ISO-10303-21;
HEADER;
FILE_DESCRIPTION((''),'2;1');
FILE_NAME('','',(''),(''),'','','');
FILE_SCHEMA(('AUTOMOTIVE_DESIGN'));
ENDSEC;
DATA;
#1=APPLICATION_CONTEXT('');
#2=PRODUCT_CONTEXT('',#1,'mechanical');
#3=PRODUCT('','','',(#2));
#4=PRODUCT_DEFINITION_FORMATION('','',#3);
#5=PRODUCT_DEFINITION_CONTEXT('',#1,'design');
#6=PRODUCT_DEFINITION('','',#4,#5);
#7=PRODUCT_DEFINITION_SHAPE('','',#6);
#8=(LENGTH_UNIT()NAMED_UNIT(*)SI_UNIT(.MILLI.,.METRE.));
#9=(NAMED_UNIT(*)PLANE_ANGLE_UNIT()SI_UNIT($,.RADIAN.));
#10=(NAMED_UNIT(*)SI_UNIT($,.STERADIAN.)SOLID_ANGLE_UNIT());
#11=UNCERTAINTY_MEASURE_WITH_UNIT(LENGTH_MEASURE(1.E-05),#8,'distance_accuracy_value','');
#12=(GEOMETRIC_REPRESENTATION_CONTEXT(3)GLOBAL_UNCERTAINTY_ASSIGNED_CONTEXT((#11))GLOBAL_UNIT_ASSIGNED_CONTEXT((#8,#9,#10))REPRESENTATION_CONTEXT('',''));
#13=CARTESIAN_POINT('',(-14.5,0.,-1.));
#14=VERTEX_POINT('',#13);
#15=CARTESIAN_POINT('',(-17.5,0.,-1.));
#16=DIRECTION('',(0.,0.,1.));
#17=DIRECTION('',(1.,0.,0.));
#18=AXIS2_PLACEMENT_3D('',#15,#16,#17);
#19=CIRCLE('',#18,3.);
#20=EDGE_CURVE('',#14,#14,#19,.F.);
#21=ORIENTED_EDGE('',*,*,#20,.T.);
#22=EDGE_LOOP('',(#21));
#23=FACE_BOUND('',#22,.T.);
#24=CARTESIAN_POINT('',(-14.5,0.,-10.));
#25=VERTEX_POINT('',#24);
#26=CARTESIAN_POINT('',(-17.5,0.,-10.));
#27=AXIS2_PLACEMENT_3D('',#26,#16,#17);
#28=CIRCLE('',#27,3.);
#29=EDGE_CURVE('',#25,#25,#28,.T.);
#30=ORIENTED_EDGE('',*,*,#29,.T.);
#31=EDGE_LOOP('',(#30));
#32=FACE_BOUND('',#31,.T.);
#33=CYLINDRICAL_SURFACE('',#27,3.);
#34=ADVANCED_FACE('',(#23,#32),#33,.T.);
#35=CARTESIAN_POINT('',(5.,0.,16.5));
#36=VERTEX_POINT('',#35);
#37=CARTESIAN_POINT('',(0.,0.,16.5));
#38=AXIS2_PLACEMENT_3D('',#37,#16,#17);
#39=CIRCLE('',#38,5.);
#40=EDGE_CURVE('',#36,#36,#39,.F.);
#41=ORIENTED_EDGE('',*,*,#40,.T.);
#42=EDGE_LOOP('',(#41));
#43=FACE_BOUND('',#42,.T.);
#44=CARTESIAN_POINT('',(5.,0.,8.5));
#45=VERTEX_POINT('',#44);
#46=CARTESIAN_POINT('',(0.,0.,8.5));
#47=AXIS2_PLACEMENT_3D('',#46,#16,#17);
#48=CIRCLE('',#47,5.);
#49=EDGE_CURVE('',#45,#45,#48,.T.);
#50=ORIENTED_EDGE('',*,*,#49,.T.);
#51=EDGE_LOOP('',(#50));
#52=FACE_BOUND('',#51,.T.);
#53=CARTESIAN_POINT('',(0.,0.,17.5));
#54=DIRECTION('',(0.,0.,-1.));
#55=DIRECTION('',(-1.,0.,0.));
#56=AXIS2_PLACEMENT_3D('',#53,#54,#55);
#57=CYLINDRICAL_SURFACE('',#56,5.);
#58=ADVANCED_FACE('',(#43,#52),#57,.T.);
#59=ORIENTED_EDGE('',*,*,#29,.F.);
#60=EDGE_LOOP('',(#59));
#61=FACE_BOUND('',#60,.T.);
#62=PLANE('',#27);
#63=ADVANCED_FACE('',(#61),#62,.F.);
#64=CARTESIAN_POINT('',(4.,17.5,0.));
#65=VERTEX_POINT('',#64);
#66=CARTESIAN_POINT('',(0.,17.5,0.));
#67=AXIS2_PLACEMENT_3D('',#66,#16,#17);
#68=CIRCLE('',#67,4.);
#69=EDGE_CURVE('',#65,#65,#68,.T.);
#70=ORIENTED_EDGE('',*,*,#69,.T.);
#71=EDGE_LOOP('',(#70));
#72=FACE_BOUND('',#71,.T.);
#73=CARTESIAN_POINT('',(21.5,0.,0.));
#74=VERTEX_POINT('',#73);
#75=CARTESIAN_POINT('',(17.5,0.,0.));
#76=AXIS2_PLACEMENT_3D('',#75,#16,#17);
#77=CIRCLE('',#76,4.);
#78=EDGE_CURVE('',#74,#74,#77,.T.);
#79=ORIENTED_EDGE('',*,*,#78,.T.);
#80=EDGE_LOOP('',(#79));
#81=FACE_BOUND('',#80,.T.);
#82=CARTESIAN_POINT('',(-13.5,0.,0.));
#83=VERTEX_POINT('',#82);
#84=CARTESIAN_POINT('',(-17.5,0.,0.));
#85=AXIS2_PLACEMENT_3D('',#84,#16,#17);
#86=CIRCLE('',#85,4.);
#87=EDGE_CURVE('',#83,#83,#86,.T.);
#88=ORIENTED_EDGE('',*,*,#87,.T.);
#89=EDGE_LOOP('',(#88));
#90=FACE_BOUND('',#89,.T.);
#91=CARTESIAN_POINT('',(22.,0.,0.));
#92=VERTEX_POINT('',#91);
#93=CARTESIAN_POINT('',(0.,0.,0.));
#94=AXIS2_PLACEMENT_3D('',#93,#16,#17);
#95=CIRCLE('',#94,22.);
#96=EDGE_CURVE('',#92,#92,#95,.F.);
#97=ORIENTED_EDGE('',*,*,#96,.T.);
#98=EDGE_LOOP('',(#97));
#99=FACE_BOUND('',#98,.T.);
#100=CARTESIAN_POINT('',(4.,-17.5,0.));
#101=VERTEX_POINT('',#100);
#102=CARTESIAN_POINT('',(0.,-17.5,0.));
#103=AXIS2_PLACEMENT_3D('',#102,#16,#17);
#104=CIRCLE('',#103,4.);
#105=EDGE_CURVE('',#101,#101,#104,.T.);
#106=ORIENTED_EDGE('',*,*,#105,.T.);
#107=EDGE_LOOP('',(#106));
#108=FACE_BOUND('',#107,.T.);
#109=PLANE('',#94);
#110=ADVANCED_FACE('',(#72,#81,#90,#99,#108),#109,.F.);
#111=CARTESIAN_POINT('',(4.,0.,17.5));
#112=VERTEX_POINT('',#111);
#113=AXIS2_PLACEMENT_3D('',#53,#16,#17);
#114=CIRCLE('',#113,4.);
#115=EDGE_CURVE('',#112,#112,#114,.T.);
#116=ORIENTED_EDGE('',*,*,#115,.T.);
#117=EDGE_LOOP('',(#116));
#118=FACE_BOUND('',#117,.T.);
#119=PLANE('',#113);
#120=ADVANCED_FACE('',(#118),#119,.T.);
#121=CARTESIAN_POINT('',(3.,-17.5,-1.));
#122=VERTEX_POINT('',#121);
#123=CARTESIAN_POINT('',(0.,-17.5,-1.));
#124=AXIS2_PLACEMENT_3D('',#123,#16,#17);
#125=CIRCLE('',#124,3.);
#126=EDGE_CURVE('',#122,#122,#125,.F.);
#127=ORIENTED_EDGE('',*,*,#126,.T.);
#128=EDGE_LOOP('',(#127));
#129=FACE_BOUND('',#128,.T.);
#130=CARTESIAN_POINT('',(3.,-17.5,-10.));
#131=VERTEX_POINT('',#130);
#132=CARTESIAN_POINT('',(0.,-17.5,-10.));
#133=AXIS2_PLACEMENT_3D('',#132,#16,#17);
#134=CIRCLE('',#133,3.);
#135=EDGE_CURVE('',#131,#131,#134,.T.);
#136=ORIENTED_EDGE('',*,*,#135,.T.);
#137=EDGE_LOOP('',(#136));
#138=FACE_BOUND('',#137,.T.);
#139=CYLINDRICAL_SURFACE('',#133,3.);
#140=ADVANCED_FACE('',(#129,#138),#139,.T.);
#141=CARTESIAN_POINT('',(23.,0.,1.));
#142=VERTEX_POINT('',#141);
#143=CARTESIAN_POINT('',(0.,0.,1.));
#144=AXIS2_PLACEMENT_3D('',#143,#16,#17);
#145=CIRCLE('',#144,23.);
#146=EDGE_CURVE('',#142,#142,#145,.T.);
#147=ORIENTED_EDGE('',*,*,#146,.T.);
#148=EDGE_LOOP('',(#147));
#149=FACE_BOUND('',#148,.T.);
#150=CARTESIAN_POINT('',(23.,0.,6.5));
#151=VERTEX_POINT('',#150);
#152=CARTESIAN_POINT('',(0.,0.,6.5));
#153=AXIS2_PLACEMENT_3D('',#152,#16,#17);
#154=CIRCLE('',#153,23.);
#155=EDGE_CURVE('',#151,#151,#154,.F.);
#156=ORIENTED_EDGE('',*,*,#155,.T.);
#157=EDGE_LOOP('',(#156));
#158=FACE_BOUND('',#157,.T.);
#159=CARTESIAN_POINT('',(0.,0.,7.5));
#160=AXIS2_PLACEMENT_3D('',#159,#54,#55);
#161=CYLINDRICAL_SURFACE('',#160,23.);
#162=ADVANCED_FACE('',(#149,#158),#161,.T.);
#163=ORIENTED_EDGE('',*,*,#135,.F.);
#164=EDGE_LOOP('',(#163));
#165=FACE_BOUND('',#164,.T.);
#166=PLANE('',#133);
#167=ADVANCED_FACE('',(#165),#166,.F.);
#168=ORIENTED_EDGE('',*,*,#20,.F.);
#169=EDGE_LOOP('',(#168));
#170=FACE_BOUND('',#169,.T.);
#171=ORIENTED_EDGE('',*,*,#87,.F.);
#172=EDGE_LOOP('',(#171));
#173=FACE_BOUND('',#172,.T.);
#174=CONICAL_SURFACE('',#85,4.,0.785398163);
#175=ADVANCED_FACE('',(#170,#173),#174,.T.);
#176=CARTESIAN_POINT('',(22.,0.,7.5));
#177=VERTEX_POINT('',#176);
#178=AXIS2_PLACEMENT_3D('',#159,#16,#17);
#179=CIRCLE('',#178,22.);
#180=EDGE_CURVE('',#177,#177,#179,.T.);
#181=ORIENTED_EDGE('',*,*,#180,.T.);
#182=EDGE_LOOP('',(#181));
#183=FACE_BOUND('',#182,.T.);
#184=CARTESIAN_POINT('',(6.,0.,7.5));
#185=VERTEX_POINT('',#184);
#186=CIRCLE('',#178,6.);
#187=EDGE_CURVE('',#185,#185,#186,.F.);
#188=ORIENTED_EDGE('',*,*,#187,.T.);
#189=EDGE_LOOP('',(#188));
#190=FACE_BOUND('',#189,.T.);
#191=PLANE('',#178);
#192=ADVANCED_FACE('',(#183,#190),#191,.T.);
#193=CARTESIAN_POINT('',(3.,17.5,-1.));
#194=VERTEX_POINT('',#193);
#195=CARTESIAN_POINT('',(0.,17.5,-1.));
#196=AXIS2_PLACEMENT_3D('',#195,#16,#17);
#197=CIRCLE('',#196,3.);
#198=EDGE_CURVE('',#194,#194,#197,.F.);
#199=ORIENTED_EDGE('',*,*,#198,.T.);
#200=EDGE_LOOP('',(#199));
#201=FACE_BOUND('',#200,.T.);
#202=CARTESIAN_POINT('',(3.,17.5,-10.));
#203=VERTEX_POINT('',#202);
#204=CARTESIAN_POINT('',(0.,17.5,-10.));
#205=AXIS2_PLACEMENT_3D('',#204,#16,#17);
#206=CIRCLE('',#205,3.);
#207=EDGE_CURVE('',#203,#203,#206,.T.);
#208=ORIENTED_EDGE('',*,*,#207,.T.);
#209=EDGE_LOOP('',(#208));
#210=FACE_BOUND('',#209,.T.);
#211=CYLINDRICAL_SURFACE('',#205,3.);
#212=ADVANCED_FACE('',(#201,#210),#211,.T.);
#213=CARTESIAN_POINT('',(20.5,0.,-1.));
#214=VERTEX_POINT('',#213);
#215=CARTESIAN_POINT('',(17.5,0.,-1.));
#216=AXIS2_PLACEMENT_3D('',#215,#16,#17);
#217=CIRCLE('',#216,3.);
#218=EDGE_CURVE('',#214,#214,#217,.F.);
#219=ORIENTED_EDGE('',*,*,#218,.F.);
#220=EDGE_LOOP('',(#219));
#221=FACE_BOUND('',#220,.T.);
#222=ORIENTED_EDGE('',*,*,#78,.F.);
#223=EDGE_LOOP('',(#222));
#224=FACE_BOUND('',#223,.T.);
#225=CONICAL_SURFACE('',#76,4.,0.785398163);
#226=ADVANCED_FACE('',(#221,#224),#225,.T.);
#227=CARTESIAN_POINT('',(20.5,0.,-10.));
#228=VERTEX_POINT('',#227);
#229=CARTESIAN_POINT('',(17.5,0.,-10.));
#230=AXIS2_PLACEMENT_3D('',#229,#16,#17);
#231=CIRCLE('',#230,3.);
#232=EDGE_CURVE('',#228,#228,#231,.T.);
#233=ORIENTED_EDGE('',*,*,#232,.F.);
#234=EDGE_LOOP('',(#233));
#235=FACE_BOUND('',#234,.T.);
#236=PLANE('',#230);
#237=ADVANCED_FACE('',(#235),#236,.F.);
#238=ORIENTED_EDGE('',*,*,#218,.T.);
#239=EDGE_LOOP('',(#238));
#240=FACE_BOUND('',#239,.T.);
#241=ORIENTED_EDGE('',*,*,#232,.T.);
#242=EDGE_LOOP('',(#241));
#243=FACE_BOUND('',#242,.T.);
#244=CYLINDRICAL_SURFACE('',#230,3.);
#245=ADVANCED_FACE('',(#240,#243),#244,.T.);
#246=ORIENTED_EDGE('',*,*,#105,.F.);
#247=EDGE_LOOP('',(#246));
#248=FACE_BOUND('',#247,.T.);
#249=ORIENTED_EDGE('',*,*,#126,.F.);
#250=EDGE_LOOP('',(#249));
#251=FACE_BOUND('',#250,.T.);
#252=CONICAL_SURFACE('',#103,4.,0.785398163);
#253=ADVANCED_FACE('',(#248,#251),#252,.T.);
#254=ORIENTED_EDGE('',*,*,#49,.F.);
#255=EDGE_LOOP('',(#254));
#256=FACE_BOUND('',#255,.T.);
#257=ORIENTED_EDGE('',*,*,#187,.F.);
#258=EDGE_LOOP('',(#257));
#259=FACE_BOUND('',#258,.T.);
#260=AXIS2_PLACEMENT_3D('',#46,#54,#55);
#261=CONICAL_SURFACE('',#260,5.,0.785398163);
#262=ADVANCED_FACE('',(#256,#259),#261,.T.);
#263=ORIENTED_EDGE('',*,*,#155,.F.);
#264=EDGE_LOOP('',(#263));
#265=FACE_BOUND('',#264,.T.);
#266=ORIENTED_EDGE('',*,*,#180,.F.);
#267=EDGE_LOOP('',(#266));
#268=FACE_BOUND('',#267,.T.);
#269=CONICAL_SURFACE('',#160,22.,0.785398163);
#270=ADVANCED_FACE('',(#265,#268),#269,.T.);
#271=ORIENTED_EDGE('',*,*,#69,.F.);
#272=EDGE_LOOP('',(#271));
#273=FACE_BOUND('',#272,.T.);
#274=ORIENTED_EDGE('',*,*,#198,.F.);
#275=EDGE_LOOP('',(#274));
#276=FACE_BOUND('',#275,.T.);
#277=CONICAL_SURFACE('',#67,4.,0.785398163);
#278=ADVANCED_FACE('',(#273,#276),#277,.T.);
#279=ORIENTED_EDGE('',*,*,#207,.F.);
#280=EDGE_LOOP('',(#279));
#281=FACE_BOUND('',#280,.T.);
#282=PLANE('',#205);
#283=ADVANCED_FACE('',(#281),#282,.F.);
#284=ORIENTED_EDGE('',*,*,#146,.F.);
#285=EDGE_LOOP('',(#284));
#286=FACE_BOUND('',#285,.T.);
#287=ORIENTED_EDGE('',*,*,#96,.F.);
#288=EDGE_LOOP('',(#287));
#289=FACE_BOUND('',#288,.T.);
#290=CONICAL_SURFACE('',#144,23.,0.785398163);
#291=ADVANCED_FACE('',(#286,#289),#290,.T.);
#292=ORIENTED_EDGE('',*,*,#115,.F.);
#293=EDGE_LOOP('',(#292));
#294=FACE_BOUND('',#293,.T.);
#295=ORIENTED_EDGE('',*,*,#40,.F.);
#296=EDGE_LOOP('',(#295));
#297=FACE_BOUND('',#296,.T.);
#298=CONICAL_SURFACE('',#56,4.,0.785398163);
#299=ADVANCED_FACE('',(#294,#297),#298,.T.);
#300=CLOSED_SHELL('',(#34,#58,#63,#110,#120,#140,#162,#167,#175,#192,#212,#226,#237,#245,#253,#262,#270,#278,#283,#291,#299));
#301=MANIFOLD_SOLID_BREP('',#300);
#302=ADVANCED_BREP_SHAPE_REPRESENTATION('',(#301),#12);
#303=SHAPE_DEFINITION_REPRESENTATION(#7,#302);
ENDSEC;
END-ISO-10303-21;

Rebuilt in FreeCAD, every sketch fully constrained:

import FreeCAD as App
import Part
import Sketcher
from FreeCAD import Vector
Q = App.Units.Quantity


def edges_at(feature, points):
    """Names of the edges that pass closest to the given points."""
    edges = feature.Shape.Edges
    near = lambda p: min(range(len(edges)), key=lambda i: edges[i].distToShape(Part.Vertex(*p))[0])
    return sorted({f"Edge{near(p) + 1}" for p in points})

doc = App.newDocument("Part")
body = doc.addObject("PartDesign::Body", "Body")

sketch1 = doc.addObject("Sketcher::SketchObject", "Sketch")
body.addObject(sketch1)
sketch1.AttachmentSupport = (doc.XY_Plane, [""])
sketch1.MapMode = "FlatFace"
sketch1.addGeometry(Part.Circle(Vector(0, 0, 0), Vector(0, 0, 1), 23), False)
sketch1.addConstraint(Sketcher.Constraint("Coincident", 0, 3, -1, 1))
sketch1.addConstraint(Sketcher.Constraint("Diameter", 0, Q("46 mm")))
pad1 = doc.addObject("PartDesign::Pad", "Pad")
body.addObject(pad1)
pad1.Profile = sketch1
pad1.Length = 7.5

sketch2 = doc.addObject("Sketcher::SketchObject", "Sketch001")
body.addObject(sketch2)
sketch2.AttachmentSupport = (doc.XY_Plane, [""])
sketch2.MapMode = "FlatFace"
sketch2.addGeometry(Part.Circle(Vector(0, 17.5, 0), Vector(0, 0, 1), 3), False)
sketch2.addGeometry(Part.Circle(Vector(17.5, 0, 0), Vector(0, 0, 1), 3), False)
sketch2.addGeometry(Part.Circle(Vector(0, -17.5, 0), Vector(0, 0, 1), 3), False)
sketch2.addGeometry(Part.Circle(Vector(-17.5, 0, 0), Vector(0, 0, 1), 3), False)
sketch2.addConstraint(Sketcher.Constraint("Equal", 0, 1))
sketch2.addConstraint(Sketcher.Constraint("Equal", 1, 2))
sketch2.addConstraint(Sketcher.Constraint("Equal", 2, 3))
sketch2.addConstraint(Sketcher.Constraint("Symmetric", 0, 3, 2, 3, -1, 1))
sketch2.addConstraint(Sketcher.Constraint("Symmetric", 1, 3, 3, 3, -1, 1))
sketch2.addConstraint(Sketcher.Constraint("PointOnObject", 0, 3, -2))
sketch2.addConstraint(Sketcher.Constraint("PointOnObject", 1, 3, -1))
sketch2.addConstraint(Sketcher.Constraint("Diameter", 0, Q("6 mm")))
sketch2.addConstraint(Sketcher.Constraint("DistanceY", 2, 3, 0, 3, Q("35 mm")))
sketch2.addConstraint(Sketcher.Constraint("DistanceX", 3, 3, 1, 3, Q("35 mm")))
pad2 = doc.addObject("PartDesign::Pad", "Pad001")
body.addObject(pad2)
pad2.Profile = sketch2
pad2.Length = 10
pad2.Reversed = True

sketch3 = doc.addObject("Sketcher::SketchObject", "Sketch002")
body.addObject(sketch3)
sketch3.AttachmentSupport = (doc.XY_Plane, [""])
sketch3.MapMode = "FlatFace"
sketch3.AttachmentOffset = App.Placement(Vector(0, 0, 7.5), App.Rotation())
sketch3.addGeometry(Part.Circle(Vector(0, 0, 0), Vector(0, 0, 1), 5), False)
sketch3.addConstraint(Sketcher.Constraint("Coincident", 0, 3, -1, 1))
sketch3.addConstraint(Sketcher.Constraint("Diameter", 0, Q("10 mm")))
pad3 = doc.addObject("PartDesign::Pad", "Pad002")
body.addObject(pad3)
pad3.Profile = sketch3
pad3.Length = 10
doc.recompute()

chamfer = doc.addObject("PartDesign::Chamfer", "Chamfer")
body.addObject(chamfer)
chamfer.Base = (pad3, edges_at(pad3, [
    (14.5, 0, 0),
    (-3, -17.5, 0),
    (-20.5, 0, 0),
    (-23, 0, 0),
    (-5, 0, 7.5),
    (-5, 0, 17.5),
    (-23, 0, 7.5),
    (-3, 17.5, 0),
]))
chamfer.Size = 1

doc.recompute()
